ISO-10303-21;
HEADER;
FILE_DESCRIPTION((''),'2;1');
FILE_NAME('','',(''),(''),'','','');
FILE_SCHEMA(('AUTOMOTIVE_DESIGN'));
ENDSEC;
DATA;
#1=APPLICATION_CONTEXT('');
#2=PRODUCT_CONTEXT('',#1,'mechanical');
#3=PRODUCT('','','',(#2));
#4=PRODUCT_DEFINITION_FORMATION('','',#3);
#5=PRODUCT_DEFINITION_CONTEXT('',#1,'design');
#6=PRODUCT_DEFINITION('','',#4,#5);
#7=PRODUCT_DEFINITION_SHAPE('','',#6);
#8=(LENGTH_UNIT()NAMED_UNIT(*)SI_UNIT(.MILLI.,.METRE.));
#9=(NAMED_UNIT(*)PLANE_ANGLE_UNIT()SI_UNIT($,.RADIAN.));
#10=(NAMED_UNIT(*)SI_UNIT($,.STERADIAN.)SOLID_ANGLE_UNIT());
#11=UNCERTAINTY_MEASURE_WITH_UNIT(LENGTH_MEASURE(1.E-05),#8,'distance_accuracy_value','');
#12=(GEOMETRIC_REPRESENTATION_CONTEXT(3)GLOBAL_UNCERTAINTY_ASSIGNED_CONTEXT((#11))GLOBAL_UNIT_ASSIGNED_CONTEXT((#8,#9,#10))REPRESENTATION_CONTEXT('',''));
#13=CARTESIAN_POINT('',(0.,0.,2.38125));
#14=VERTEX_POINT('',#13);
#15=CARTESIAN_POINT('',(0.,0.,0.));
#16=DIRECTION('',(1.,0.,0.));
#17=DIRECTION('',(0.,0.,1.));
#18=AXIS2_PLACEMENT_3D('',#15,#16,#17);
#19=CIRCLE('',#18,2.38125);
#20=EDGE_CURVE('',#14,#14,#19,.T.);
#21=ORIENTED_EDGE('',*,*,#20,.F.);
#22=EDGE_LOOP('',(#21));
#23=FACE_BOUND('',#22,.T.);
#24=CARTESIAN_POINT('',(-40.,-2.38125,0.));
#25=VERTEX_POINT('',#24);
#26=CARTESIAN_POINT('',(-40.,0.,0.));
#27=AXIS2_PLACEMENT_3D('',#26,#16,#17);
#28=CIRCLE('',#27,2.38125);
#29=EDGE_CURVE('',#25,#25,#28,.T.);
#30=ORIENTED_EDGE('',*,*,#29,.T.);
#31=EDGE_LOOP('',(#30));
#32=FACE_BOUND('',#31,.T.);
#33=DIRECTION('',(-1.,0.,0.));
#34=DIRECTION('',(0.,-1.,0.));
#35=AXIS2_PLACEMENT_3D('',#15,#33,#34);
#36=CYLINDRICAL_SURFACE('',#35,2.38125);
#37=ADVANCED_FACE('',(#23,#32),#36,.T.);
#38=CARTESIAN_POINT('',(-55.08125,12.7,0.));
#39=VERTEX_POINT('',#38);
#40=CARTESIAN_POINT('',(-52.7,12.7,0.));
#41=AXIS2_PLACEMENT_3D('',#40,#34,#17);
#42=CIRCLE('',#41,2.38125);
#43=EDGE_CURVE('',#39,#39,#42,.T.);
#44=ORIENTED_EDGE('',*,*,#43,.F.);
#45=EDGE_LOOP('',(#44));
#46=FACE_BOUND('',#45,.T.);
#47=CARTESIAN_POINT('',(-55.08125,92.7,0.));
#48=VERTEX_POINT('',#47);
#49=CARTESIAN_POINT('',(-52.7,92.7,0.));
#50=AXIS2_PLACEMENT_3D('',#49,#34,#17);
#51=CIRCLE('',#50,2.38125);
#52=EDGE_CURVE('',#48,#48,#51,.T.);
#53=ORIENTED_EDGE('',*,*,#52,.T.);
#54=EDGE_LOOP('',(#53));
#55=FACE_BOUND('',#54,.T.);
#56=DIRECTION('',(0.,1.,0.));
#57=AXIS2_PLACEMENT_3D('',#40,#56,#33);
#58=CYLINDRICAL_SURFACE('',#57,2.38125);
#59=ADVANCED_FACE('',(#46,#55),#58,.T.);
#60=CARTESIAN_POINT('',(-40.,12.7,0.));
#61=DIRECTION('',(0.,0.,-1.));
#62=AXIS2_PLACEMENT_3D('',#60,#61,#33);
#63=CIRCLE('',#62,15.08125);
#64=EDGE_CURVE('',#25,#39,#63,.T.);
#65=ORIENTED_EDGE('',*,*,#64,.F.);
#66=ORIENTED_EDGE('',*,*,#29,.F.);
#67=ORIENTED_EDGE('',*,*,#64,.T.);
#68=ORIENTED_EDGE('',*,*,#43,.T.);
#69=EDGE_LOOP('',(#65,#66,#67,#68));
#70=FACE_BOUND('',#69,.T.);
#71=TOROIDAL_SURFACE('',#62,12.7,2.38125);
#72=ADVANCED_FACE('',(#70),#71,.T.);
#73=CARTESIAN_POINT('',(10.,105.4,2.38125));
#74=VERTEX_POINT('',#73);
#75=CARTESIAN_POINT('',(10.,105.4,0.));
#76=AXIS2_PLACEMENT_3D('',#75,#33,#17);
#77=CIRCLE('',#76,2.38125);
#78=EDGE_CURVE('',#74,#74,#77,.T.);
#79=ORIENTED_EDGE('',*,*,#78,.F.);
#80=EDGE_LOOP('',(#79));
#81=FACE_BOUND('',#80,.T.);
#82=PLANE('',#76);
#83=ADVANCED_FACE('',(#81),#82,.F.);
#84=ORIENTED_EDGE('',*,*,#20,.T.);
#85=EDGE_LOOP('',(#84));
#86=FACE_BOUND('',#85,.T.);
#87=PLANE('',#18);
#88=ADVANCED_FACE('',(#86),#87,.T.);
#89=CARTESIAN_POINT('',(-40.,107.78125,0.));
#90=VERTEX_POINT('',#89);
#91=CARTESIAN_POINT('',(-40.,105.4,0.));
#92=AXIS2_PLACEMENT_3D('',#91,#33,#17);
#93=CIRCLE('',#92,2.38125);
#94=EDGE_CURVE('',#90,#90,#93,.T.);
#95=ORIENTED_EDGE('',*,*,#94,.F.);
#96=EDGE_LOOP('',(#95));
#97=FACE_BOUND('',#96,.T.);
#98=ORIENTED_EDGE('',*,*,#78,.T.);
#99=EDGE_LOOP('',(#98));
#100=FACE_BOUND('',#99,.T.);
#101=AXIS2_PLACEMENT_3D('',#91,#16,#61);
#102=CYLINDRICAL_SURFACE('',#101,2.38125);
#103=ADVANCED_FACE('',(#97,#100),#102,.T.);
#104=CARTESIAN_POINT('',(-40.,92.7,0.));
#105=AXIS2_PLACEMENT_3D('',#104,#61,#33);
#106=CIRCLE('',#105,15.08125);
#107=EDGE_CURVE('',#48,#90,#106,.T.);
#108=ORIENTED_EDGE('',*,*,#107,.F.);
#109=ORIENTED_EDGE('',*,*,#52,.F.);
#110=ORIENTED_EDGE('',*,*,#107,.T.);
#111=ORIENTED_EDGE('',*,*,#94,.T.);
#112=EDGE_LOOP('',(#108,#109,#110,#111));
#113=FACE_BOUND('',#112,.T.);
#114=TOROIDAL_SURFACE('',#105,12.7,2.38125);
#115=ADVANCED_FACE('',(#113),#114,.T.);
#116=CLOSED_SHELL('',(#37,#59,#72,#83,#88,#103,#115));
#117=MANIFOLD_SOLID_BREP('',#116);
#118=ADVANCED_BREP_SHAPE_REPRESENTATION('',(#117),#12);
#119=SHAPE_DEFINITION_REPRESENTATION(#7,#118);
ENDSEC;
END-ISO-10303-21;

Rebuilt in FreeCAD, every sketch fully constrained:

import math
import FreeCAD as App
import Part
import Sketcher
from FreeCAD import Vector

doc = App.newDocument("Part")
body = doc.addObject("PartDesign::Body", "Body")

# Sketch on YZ plane
sketch1 = doc.addObject("Sketcher::SketchObject", "Sketch")
body.addObject(sketch1)
sketch1.AttachmentSupport = (doc.YZ_Plane, [""])
sketch1.MapMode = "FlatFace"
sketch1.addGeometry(Part.Circle(Vector(0, 0, 0), Vector(0, 0, 1), 2.4), False)
sketch1.addConstraint([
    Sketcher.Constraint("Coincident", 0, 3, -1, 1),
    Sketcher.Constraint("Diameter", 0, 4.7625),
])

# Sketch on XY plane
sketch2 = doc.addObject("Sketcher::SketchObject", "Sketch001")
body.addObject(sketch2)
sketch2.AttachmentSupport = (doc.XY_Plane, [""])
sketch2.MapMode = "FlatFace"
sketch2.addGeometry([
    Part.LineSegment(Vector(0, 0, 0), Vector(-40, 0, 0)),  # 0
    Part.ArcOfCircle(Part.Circle(Vector(-40, 13, 0), Vector(0, 0, 1), 13), math.radians(180), math.radians(270)),  # 1
    Part.LineSegment(Vector(-53, 13, 0), Vector(-53, 93, 0)),  # 2
    Part.ArcOfCircle(Part.Circle(Vector(-40, 93, 0), Vector(0, 0, 1), 13), math.radians(90), math.radians(180)),  # 3
    Part.LineSegment(Vector(-40, 105, 0), Vector(10, 105, 0)),  # 4
], False)
sketch2.addConstraint([
    Sketcher.Constraint("Tangent", 0, 2, 1, 2),
    Sketcher.Constraint("Tangent", 1, 1, 2, 1),
    Sketcher.Constraint("Tangent", 2, 2, 3, 2),
    Sketcher.Constraint("Tangent", 3, 1, 4, 1),
    Sketcher.Constraint("Horizontal", 0),
    Sketcher.Constraint("Vertical", 2),
    Sketcher.Constraint("Horizontal", 4),
    Sketcher.Constraint("Coincident", 0, 1, -1, 1),
    Sketcher.Constraint("Equal", 1, 3),
    Sketcher.Constraint("Radius", 1, 12.7),
    Sketcher.Constraint("DistanceX", 0, 2, 0, 1, 40.0),
    Sketcher.Constraint("DistanceX", 4, 1, 4, 2, 50.0),
    Sketcher.Constraint("DistanceY", 2, 1, 2, 2, 80.0),
])
doc.recompute()

additivepipe = doc.addObject("PartDesign::AdditivePipe", "AdditivePipe")
body.addObject(additivepipe)
additivepipe.Profile = sketch1
additivepipe.Spine = (sketch2, ["Edge1", "Edge2", "Edge3", "Edge4", "Edge5"])

doc.recompute()
